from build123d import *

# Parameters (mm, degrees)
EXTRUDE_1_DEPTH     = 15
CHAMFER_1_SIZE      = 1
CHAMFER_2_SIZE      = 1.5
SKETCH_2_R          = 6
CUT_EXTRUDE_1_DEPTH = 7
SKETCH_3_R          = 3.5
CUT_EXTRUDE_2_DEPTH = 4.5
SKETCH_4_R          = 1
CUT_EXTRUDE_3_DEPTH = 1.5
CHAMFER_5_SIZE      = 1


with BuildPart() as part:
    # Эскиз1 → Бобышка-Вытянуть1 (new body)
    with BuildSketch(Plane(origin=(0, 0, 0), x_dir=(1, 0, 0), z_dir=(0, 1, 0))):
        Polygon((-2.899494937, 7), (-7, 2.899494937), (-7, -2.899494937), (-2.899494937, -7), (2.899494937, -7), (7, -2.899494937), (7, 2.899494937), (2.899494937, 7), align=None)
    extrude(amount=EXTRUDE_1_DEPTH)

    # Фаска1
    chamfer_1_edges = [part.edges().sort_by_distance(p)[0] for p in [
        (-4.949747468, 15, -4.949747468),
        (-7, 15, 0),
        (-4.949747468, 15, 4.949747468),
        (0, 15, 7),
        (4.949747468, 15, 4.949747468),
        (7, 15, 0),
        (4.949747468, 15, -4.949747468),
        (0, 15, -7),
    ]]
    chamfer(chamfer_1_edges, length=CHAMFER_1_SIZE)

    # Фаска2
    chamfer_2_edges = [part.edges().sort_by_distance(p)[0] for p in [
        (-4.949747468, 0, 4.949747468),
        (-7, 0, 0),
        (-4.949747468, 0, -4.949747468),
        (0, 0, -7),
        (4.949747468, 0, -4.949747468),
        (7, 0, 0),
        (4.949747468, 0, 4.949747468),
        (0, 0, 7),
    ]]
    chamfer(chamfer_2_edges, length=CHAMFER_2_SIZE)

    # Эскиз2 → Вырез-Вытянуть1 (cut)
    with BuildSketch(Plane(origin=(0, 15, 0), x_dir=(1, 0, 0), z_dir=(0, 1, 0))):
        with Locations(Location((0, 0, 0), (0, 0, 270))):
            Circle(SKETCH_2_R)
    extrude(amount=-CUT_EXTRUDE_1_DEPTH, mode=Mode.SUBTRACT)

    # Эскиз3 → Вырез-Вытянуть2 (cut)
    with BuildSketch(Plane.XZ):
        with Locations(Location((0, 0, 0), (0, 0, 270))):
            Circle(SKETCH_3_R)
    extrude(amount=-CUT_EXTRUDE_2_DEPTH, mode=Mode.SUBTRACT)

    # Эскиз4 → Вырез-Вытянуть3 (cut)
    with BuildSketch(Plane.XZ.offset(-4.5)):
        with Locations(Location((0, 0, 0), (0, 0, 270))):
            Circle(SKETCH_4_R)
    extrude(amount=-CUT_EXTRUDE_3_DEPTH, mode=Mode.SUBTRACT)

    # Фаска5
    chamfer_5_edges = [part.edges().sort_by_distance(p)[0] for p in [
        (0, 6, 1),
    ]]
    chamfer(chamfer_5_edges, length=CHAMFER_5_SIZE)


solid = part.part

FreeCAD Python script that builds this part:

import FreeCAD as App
import Part
import Sketcher
from FreeCAD import Vector


def edges_at(feature, points):
    """Names of the edges that pass closest to the given points."""
    edges = feature.Shape.Edges
    near = lambda p: min(range(len(edges)), key=lambda i: edges[i].distToShape(Part.Vertex(*p))[0])
    return sorted({f"Edge{near(p) + 1}" for p in points})


def add_polygon(sketch, points):
    """Adds a closed chain of lines whose ends are joined by coincident constraints."""
    first, n = sketch.GeometryCount, len(points)
    for a, b in zip(points, points[1:] + points[:1]):
        sketch.addGeometry(Part.LineSegment(App.Vector(*a, 0), App.Vector(*b, 0)), False)
    for i in range(n):
        sketch.addConstraint(Sketcher.Constraint("Coincident", first + i, 2, first + (i + 1) % n, 1))

doc = App.newDocument("Part")
body = doc.addObject("PartDesign::Body", "Body")

sketch1 = body.newObject("Sketcher::SketchObject", "Sketch")
sketch1.AttachmentSupport = (doc.getObject("XZ_Plane"), [""])
sketch1.MapMode = "FlatFace"
add_polygon(sketch1, [(-3, -7), (-7, -3), (-7, 3), (-3, 7), (3, 7), (7, 3), (7, -3), (3, -7)])
sketch1.addConstraint([
    Sketcher.Constraint("Vertical", 1),
    Sketcher.Constraint("Horizontal", 3),
    Sketcher.Constraint("Vertical", 5),
    Sketcher.Constraint("Horizontal", 7),
    Sketcher.Constraint("Symmetric", 0, 2, 4, 2, -1, 1),
    Sketcher.Constraint("Symmetric", 2, 2, 6, 2, -1, 1),
    Sketcher.Constraint("Perpendicular", 0, 2),
    Sketcher.Constraint("Perpendicular", 2, 4),
    Sketcher.Constraint("Perpendicular", 4, 6),
    Sketcher.Constraint("Horizontal", 1, 2, 4, 2),
    Sketcher.Constraint("Vertical", 3, 2, 6, 2),
    Sketcher.Constraint("Equal", 7, 1),
    Sketcher.Constraint("DistanceX", 0, 2, -1, 1, 7.0),
    Sketcher.Constraint("DistanceX", 3, 1, 3, 2, 5.79899),
])
pad1 = body.newObject("PartDesign::Pad", "Pad")
pad1.Profile = sketch1
pad1.Length = 15
pad1.Reversed = True
doc.recompute()

chamfer = body.newObject("PartDesign::Chamfer", "Chamfer")
chamfer.Base = (pad1, edges_at(pad1, [
    (-4.95, 15, -4.95),
    (-7, 15, 0),
    (-4.95, 15, 4.95),
    (0, 15, 7),
    (4.95, 15, 4.95),
    (7, 15, 0),
    (4.95, 15, -4.95),
    (0, 15, -7),
]))
chamfer.Size = 1
doc.recompute()

chamfer2 = body.newObject("PartDesign::Chamfer", "Chamfer001")
chamfer2.Base = (chamfer, edges_at(chamfer, [
    (-4.95, 0, 4.95),
    (-7, 0, 0),
    (-4.95, 0, -4.95),
    (0, 0, -7),
    (4.95, 0, -4.95),
    (7, 0, 0),
    (4.95, 0, 4.95),
    (0, 0, 7),
]))
chamfer2.Size = 1.5

sketch2 = body.newObject("Sketcher::SketchObject", "Sketch001")
sketch2.AttachmentSupport = (doc.getObject("XZ_Plane"), [""])
sketch2.MapMode = "FlatFace"
sketch2.AttachmentOffset = App.Placement(Vector(0, 0, -15), App.Rotation())
sketch2.addGeometry(Part.Circle(Vector(0, 0, 0), Vector(0, 0, 1), 6), False)
sketch2.addConstraint([
    Sketcher.Constraint("Coincident", 0, 3, -1, 1),
    Sketcher.Constraint("Diameter", 0, 12.0),
])
pocket1 = body.newObject("PartDesign::Pocket", "Pocket")
pocket1.Profile = sketch2
pocket1.Length = 7
pocket1.Reversed = True

sketch3 = body.newObject("Sketcher::SketchObject", "Sketch002")
sketch3.AttachmentSupport = (doc.getObject("XZ_Plane"), [""])
sketch3.MapMode = "FlatFace"
sketch3.addGeometry(Part.Circle(Vector(0, 0, 0), Vector(0, 0, 1), 3.5), False)
sketch3.addConstraint([
    Sketcher.Constraint("Coincident", 0, 3, -1, 1),
    Sketcher.Constraint("Diameter", 0, 7.0),
])
pocket2 = body.newObject("PartDesign::Pocket", "Pocket001")
pocket2.Profile = sketch3
pocket2.Length = 4.5

sketch4 = body.newObject("Sketcher::SketchObject", "Sketch003")
sketch4.AttachmentSupport = (doc.getObject("XZ_Plane"), [""])
sketch4.MapMode = "FlatFace"
sketch4.AttachmentOffset = App.Placement(Vector(0, 0, -4.5), App.Rotation())
sketch4.addGeometry(Part.Circle(Vector(0, 0, 0), Vector(0, 0, 1), 1), False)
sketch4.addConstraint([
    Sketcher.Constraint("Coincident", 0, 3, -1, 1),
    Sketcher.Constraint("Diameter", 0, 2.0),
])
pocket3 = body.newObject("PartDesign::Pocket", "Pocket002")
pocket3.Profile = sketch4
pocket3.Length = 1.5
doc.recompute()

chamfer3 = body.newObject("PartDesign::Chamfer", "Chamfer002")
chamfer3.Base = (pocket3, edges_at(pocket3, [(0, 6, 1)]))
chamfer3.Size = 1

doc.recompute()
